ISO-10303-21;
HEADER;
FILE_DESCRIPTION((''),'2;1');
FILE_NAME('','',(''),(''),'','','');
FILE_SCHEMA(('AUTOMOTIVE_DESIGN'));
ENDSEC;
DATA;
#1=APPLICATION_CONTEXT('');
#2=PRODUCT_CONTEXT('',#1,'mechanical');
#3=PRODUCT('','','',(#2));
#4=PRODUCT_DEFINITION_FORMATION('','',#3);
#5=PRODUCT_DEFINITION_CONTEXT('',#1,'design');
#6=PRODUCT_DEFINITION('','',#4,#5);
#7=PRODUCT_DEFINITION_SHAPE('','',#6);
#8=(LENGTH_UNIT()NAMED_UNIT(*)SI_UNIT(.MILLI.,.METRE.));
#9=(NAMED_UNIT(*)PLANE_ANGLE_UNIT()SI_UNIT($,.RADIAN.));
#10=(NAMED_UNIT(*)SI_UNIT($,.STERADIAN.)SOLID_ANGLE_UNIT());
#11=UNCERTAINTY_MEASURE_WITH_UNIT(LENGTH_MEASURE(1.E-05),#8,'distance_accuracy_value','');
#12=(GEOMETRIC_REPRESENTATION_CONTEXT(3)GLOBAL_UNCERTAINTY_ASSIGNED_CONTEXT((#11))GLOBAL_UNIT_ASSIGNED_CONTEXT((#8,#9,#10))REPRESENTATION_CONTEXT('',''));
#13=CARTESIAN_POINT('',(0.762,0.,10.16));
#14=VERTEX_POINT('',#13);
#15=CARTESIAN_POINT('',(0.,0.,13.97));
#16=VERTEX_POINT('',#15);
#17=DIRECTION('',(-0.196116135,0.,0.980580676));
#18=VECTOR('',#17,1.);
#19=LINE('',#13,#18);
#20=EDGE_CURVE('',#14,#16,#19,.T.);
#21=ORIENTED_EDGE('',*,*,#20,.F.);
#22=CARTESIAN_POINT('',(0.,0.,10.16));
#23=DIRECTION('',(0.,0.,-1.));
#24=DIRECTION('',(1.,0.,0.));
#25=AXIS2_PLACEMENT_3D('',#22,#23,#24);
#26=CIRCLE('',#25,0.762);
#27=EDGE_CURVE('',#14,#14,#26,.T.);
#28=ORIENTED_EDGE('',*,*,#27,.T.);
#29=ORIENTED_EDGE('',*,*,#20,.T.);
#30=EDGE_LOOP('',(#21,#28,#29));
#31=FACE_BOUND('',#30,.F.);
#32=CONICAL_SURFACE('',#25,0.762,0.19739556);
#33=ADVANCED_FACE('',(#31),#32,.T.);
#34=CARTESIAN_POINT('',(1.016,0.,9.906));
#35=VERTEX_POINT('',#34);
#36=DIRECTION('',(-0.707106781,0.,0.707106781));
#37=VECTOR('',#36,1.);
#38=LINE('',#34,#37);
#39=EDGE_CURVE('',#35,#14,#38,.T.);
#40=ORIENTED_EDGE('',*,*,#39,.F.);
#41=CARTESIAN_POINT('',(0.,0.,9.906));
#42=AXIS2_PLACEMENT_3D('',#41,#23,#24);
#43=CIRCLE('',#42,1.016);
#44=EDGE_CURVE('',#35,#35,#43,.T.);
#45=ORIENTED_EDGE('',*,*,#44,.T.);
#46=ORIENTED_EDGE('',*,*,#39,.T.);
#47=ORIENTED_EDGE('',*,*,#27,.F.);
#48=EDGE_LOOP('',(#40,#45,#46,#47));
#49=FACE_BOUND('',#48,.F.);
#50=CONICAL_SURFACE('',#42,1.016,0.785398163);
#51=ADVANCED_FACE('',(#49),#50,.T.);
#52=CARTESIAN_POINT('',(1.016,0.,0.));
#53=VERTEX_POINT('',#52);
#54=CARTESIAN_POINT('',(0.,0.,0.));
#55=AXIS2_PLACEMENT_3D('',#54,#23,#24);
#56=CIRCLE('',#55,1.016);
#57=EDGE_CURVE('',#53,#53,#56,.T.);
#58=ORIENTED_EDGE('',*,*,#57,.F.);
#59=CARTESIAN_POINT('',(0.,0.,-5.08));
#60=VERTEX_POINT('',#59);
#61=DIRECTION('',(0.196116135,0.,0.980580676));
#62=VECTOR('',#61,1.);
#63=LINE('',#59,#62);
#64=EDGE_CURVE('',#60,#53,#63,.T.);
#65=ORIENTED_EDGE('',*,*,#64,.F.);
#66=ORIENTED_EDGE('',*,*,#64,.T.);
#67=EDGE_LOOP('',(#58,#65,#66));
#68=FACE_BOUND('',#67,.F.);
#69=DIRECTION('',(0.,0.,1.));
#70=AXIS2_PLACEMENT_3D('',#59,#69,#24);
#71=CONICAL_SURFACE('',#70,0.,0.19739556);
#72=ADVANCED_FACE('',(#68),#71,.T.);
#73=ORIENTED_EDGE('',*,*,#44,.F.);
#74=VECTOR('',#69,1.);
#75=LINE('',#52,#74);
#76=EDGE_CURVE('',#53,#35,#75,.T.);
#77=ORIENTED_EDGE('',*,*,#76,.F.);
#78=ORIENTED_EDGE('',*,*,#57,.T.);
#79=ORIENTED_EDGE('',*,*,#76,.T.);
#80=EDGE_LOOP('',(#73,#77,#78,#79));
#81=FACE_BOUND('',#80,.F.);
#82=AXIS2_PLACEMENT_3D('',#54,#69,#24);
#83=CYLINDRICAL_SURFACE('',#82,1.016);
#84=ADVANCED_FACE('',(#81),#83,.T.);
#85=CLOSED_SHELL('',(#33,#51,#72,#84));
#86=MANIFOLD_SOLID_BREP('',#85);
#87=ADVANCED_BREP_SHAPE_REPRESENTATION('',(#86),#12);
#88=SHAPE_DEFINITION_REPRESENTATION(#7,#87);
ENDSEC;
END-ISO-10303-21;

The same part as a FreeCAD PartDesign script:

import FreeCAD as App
import Part
import Sketcher
Q = App.Units.Quantity


def add_polygon(sketch, points):
    """Adds a closed chain of lines whose ends are joined by coincident constraints."""
    first, n = sketch.GeometryCount, len(points)
    for a, b in zip(points, points[1:] + points[:1]):
        sketch.addGeometry(Part.LineSegment(App.Vector(*a, 0), App.Vector(*b, 0)), False)
    for i in range(n):
        sketch.addConstraint(Sketcher.Constraint("Coincident", first + i, 2, first + (i + 1) % n, 1))

doc = App.newDocument("Part")
body = doc.addObject("PartDesign::Body", "Body")

sketch1 = body.newObject("Sketcher::SketchObject", "Sketch")
sketch1.AttachmentSupport = (doc.getObject("XZ_Plane"), [""])
sketch1.MapMode = "FlatFace"
add_polygon(sketch1, [(1.02, 0), (1.02, 9.91), (0.76, 10.16), (0, 13.97), (0, -5.08)])
sketch1.addConstraint([
    Sketcher.Constraint("Vertical", 0),
    Sketcher.Constraint("Vertical", 3),
    Sketcher.Constraint("PointOnObject", 2, 2, -2),
    Sketcher.Constraint("PointOnObject", 4, 2, -1),
    Sketcher.Constraint("Angle", 1, Q("135 deg")),
    Sketcher.Constraint("DistanceY", 0, 1, 0, 2, Q("0.39 in")),
    Sketcher.Constraint("DistanceY", 3, 2, 3, 1, Q("0.75 in")),
    Sketcher.Constraint("DistanceY", -1, 1, 1, 2, Q("0.4 in")),
    Sketcher.Constraint("DistanceY", 3, 2, -1, 1, Q("0.2 in")),
    Sketcher.Constraint("DistanceX", -1, 1, 0, 2, Q("0.04 in")),
])
revolution = body.newObject("PartDesign::Revolution", "Revolution")
revolution.Profile = sketch1
revolution.ReferenceAxis = (sketch1, ["V_Axis"])
revolution.Angle = 360

doc.recompute()
